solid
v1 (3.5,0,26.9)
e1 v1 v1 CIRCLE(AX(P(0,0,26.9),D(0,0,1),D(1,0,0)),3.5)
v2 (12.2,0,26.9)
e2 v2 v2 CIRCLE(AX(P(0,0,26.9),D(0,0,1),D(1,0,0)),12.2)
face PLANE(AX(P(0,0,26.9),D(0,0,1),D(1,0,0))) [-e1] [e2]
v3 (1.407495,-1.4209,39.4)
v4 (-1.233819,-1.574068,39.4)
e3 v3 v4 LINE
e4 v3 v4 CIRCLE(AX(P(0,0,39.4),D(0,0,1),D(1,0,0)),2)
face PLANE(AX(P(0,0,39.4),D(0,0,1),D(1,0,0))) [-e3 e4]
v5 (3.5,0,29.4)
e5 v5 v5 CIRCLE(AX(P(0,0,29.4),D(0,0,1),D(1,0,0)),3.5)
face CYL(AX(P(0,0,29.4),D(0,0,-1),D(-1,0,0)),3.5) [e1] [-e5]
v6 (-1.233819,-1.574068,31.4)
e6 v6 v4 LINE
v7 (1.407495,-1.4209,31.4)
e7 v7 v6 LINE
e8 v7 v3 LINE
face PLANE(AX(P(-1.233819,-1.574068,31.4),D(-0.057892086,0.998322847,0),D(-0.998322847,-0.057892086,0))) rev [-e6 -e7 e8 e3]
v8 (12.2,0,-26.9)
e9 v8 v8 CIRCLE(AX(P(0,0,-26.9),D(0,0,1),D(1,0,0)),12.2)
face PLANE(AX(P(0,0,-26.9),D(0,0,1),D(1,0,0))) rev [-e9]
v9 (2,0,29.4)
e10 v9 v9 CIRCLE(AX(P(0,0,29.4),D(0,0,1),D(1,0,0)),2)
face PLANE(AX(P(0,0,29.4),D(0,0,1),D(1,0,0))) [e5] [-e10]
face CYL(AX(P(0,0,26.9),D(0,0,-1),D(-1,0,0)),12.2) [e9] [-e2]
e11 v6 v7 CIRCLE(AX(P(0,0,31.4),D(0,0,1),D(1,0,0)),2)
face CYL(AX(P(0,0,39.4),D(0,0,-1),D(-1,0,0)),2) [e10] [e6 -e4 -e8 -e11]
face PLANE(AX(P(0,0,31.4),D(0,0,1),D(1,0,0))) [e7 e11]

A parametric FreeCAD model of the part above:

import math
import FreeCAD as App
import Part
import Sketcher
Q = App.Units.Quantity

doc = App.newDocument("Part")
body = doc.addObject("PartDesign::Body", "Body")

# Sketch on XY plane
sketch1 = doc.addObject("Sketcher::SketchObject", "Sketch")
body.addObject(sketch1)
sketch1.AttachmentSupport = (doc.XY_Plane, [""])
sketch1.MapMode = "FlatFace"
sketch1.addGeometry(Part.Circle(App.Vector(0, 0, 0), App.Vector(0, 0, 1), 12), False)
sketch1.addConstraint([
    Sketcher.Constraint("Coincident", 0, 3, -1, 1),
    Sketcher.Constraint("Diameter", 0, Q("24.4 mm")),
])
pad1 = doc.addObject("PartDesign::Pad", "Pad")
body.addObject(pad1)
pad1.Profile = sketch1
pad1.Length = 53.8
pad1.Midplane = True

# Sketch on XY plane
sketch2 = doc.addObject("Sketcher::SketchObject", "Sketch001")
body.addObject(sketch2)
sketch2.AttachmentSupport = (doc.XY_Plane, [""])
sketch2.MapMode = "FlatFace"
sketch2.AttachmentOffset = App.Placement(App.Vector(0, 0, 26.9), App.Rotation())
sketch2.addGeometry(Part.Circle(App.Vector(0, 0, 0), App.Vector(0, 0, 1), 3.5), False)
sketch2.addConstraint([
    Sketcher.Constraint("Coincident", 0, 3, -1, 1),
    Sketcher.Constraint("Diameter", 0, Q("7 mm")),
])
pad2 = doc.addObject("PartDesign::Pad", "Pad001")
body.addObject(pad2)
pad2.Profile = sketch2
pad2.Length = 2.5

# Sketch on XY plane
sketch3 = doc.addObject("Sketcher::SketchObject", "Sketch002")
body.addObject(sketch3)
sketch3.AttachmentSupport = (doc.XY_Plane, [""])
sketch3.MapMode = "FlatFace"
sketch3.AttachmentOffset = App.Placement(App.Vector(0, 0, 29.4), App.Rotation())
sketch3.addGeometry(Part.Circle(App.Vector(0, 0, 0), App.Vector(0, 0, 1), 2), False)
sketch3.addConstraint([
    Sketcher.Constraint("Coincident", 0, 3, -1, 1),
    Sketcher.Constraint("Diameter", 0, Q("4 mm")),
])
pad3 = doc.addObject("PartDesign::Pad", "Pad002")
body.addObject(pad3)
pad3.Profile = sketch3
pad3.Length = 10

# Sketch on XY plane
sketch4 = doc.addObject("Sketcher::SketchObject", "Sketch003")
body.addObject(sketch4)
sketch4.AttachmentSupport = (doc.XY_Plane, [""])
sketch4.MapMode = "FlatFace"
sketch4.AttachmentOffset = App.Placement(App.Vector(0, 0, 39.4), App.Rotation())
sketch4.addGeometry([
    Part.LineSegment(App.Vector(1.4, -1.4, 0), App.Vector(-1.2, -1.6, 0)),
    Part.ArcOfCircle(Part.Circle(App.Vector(0, 0, 0), App.Vector(0, 0, 1), 2), math.radians(-128), math.radians(-45)),
], False)
sketch4.addConstraint([
    Sketcher.Constraint("Coincident", 0, 1, 1, 2),
    Sketcher.Constraint("Coincident", 1, 1, 0, 2),
    Sketcher.Constraint("Coincident", 1, 3, -1, 1),
    Sketcher.Constraint("Radius", 1, Q("2 mm")),
    Sketcher.Constraint("DistanceY", 0, 1, -1, 1, Q("1.4209 mm")),
    Sketcher.Constraint("Distance", 0, Q("2.645751 mm")),
])
pocket1 = doc.addObject("PartDesign::Pocket", "Pocket")
body.addObject(pocket1)
pocket1.Profile = sketch4
pocket1.Length = 8

doc.recompute()
